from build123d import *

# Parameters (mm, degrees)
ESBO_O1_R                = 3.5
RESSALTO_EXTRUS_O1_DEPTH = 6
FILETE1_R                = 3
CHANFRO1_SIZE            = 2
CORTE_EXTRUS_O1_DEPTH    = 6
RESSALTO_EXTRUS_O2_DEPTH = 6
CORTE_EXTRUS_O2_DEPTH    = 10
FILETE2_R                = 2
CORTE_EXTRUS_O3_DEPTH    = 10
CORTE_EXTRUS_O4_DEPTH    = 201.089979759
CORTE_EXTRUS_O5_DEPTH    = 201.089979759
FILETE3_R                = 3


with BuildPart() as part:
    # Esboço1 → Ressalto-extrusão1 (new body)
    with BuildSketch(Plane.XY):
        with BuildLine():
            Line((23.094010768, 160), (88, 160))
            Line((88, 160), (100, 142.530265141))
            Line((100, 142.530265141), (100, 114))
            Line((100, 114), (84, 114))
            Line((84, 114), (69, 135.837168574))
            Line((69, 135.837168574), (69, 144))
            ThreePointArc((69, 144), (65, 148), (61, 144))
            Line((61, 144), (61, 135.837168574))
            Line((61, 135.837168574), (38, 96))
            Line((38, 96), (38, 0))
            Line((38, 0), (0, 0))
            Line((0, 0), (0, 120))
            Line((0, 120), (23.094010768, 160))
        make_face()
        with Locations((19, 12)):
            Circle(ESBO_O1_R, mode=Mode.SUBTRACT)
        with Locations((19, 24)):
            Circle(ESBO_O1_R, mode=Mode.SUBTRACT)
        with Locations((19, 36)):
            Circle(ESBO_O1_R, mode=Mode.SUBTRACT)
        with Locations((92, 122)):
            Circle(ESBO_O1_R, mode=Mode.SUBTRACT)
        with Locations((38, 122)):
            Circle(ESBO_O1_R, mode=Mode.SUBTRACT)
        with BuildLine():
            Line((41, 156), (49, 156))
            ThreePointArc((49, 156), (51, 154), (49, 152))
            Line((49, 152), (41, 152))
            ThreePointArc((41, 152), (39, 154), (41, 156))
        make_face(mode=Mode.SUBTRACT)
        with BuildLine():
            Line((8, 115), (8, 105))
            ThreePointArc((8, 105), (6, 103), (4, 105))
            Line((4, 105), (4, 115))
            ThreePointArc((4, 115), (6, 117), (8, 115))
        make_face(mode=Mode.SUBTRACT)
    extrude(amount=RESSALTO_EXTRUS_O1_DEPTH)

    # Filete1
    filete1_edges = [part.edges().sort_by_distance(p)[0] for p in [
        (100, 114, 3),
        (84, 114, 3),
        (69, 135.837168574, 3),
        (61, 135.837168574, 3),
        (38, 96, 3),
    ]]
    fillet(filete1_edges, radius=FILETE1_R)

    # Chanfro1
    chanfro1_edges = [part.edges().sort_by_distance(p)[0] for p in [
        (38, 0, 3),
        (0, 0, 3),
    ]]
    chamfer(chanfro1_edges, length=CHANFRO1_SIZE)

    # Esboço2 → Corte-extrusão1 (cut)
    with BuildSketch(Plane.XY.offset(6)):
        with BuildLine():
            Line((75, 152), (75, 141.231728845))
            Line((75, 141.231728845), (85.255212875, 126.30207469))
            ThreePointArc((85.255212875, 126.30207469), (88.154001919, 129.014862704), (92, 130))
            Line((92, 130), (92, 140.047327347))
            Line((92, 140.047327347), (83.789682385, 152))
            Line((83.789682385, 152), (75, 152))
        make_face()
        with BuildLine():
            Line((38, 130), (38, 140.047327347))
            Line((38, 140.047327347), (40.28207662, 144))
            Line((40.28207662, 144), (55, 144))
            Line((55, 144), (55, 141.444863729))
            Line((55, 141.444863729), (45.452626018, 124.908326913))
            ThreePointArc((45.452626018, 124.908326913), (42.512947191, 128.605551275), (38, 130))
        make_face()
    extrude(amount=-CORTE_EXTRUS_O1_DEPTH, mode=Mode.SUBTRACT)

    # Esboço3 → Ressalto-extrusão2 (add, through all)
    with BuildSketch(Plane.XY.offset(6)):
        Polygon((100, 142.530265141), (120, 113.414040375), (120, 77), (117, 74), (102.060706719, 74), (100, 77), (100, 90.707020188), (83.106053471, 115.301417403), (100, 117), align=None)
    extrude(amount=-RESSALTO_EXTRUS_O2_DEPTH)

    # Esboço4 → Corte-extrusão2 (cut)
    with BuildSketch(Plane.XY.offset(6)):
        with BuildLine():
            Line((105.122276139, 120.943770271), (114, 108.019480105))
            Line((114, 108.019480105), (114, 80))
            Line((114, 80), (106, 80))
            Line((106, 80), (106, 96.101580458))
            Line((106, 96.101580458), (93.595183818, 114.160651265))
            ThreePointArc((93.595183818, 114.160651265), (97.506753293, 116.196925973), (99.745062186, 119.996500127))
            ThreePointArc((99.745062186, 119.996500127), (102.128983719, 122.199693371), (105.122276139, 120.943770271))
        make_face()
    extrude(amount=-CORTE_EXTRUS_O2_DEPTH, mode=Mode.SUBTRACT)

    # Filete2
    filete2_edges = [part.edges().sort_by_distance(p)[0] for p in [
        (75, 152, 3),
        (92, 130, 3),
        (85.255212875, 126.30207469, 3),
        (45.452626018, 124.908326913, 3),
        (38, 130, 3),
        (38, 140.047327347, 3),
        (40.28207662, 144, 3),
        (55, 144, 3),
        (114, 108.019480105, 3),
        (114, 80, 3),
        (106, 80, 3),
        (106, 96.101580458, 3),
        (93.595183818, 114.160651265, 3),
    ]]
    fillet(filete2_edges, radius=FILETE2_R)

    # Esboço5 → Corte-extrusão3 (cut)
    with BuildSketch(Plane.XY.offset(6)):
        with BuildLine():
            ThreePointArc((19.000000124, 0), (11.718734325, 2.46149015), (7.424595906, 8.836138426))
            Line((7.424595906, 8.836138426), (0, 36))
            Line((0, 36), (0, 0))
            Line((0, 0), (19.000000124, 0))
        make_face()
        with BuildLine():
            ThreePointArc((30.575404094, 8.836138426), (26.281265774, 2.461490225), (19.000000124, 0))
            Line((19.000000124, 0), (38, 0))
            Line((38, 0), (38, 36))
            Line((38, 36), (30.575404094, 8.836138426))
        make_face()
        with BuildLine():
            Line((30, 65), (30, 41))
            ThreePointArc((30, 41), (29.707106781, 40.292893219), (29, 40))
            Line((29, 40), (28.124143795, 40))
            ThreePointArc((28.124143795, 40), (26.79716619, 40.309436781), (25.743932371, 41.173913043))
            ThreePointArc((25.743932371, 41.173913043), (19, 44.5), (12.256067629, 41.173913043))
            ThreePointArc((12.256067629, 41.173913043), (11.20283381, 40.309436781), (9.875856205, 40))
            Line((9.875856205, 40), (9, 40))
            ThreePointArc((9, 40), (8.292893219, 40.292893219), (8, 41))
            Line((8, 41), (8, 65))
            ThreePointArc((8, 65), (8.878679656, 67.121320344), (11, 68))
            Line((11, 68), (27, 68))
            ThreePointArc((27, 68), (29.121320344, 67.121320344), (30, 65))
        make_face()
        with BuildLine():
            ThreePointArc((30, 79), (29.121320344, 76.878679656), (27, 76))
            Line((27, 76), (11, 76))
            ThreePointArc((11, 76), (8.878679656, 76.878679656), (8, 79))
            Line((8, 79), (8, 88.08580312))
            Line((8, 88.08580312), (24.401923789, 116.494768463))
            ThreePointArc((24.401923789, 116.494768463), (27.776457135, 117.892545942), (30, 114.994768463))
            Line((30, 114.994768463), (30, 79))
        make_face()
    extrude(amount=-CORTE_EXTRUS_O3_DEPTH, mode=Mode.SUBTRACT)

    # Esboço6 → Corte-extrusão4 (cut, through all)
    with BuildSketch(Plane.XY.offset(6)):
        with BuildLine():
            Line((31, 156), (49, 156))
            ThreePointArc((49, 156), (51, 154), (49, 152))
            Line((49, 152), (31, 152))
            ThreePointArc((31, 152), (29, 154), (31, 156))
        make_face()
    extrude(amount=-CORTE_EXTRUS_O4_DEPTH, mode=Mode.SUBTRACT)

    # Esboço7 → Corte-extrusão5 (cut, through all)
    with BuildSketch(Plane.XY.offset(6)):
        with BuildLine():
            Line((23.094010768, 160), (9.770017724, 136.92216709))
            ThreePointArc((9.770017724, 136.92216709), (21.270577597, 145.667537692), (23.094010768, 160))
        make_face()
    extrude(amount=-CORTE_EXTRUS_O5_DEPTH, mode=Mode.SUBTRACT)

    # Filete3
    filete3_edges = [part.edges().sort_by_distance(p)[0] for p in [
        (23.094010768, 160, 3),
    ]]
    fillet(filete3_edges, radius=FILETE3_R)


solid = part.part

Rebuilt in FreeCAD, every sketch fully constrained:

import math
import FreeCAD as App
import Part
import Sketcher

V = App.Vector
Q = App.Units.Quantity


def edges_at(feature, points):
    """Names of the edges that pass closest to the given points."""
    edges = feature.Shape.Edges
    near = lambda p: min(range(len(edges)), key=lambda i: edges[i].distToShape(Part.Vertex(*p))[0])
    return sorted({f"Edge{near(p) + 1}" for p in points})

doc = App.newDocument("Part")
body = doc.addObject("PartDesign::Body", "Body")

# Sketch on XY plane
sketch1 = body.newObject("Sketcher::SketchObject", "Sketch")
sketch1.AttachmentSupport = (doc.getObject("XY_Plane"), [""])
sketch1.MapMode = "FlatFace"
sketch1.addGeometry([
    Part.LineSegment(V(88, 160, 0), V(23.1, 160, 0)),  # 0
    Part.LineSegment(V(23.1, 160, 0), V(0, 120, 0)),  # 1
    Part.LineSegment(V(0, 120, 0), V(0, 0, 0)),  # 2
    Part.LineSegment(V(0, 0, 0), V(38, 0, 0)),  # 3
    Part.LineSegment(V(38, 0, 0), V(38, 96, 0)),  # 4
    Part.LineSegment(V(38, 96, 0), V(61, 135.8, 0)),  # 5
    Part.LineSegment(V(61, 135.8, 0), V(61, 144, 0)),  # 6
    Part.ArcOfCircle(Part.Circle(V(65, 144, 0), V(0, 0, 1), 4), math.radians(0), math.radians(180)),  # 7
    Part.LineSegment(V(69, 144, 0), V(69, 135.8, 0)),  # 8
    Part.LineSegment(V(69, 135.8, 0), V(84, 114, 0)),  # 9
    Part.LineSegment(V(84, 114, 0), V(100, 114, 0)),  # 10
    Part.LineSegment(V(100, 114, 0), V(100, 142.5, 0)),  # 11
    Part.LineSegment(V(100, 142.5, 0), V(88, 160, 0)),  # 12
    Part.Circle(V(19, 12, 0), V(0, 0, 1), 3.5),  # 13
    Part.Circle(V(19, 24, 0), V(0, 0, 1), 3.5),  # 14
    Part.Circle(V(19, 36, 0), V(0, 0, 1), 3.5),  # 15
    Part.Circle(V(92, 122, 0), V(0, 0, 1), 3.5),  # 16
    Part.LineSegment(V(8, 115, 0), V(8, 105, 0)),  # 17
    Part.ArcOfCircle(Part.Circle(V(6, 105, 0), V(0, 0, 1), 2), math.radians(180), math.radians(360)),  # 18
    Part.LineSegment(V(4, 105, 0), V(4, 115, 0)),  # 19
    Part.ArcOfCircle(Part.Circle(V(6, 115, 0), V(0, 0, 1), 2), math.radians(0), math.radians(180)),  # 20
    Part.Circle(V(38, 122, 0), V(0, 0, 1), 3.5),  # 21
    Part.LineSegment(V(41, 156, 0), V(49, 156, 0)),  # 22
    Part.ArcOfCircle(Part.Circle(V(49, 154, 0), V(0, 0, 1), 2), math.radians(-90), math.radians(90)),  # 23
    Part.LineSegment(V(49, 152, 0), V(41, 152, 0)),  # 24
    Part.ArcOfCircle(Part.Circle(V(41, 154, 0), V(0, 0, 1), 2), math.radians(90), math.radians(270)),  # 25
], False)
sketch1.addConstraint([
    Sketcher.Constraint("Coincident", 0, 2, 1, 1),
    Sketcher.Constraint("Coincident", 1, 2, 2, 1),
    Sketcher.Constraint("Coincident", 2, 2, 3, 1),
    Sketcher.Constraint("Coincident", 3, 2, 4, 1),
    Sketcher.Constraint("Coincident", 4, 2, 5, 1),
    Sketcher.Constraint("Coincident", 5, 2, 6, 1),
    Sketcher.Constraint("Tangent", 6, 2, 7, 2),
    Sketcher.Constraint("Tangent", 7, 1, 8, 1),
    Sketcher.Constraint("Coincident", 8, 2, 9, 1),
    Sketcher.Constraint("Coincident", 9, 2, 10, 1),
    Sketcher.Constraint("Coincident", 10, 2, 11, 1),
    Sketcher.Constraint("Coincident", 11, 2, 12, 1),
    Sketcher.Constraint("Coincident", 12, 2, 0, 1),
    Sketcher.Constraint("Tangent", 17, 2, 18, 2),
    Sketcher.Constraint("Tangent", 18, 1, 19, 1),
    Sketcher.Constraint("Tangent", 19, 2, 20, 2),
    Sketcher.Constraint("Tangent", 20, 1, 17, 1),
    Sketcher.Constraint("Tangent", 22, 2, 23, 2),
    Sketcher.Constraint("Tangent", 23, 1, 24, 1),
    Sketcher.Constraint("Tangent", 24, 2, 25, 2),
    Sketcher.Constraint("Tangent", 25, 1, 22, 1),
    Sketcher.Constraint("Horizontal", 0),
    Sketcher.Constraint("Vertical", 2),
    Sketcher.Constraint("Horizontal", 3),
    Sketcher.Constraint("Vertical", 4),
    Sketcher.Constraint("Vertical", 6),
    Sketcher.Constraint("Vertical", 8),
    Sketcher.Constraint("Horizontal", 10),
    Sketcher.Constraint("Vertical", 11),
    Sketcher.Constraint("Vertical", 17),
    Sketcher.Constraint("Vertical", 19),
    Sketcher.Constraint("Horizontal", 22),
    Sketcher.Constraint("Horizontal", 24),
    Sketcher.Constraint("Coincident", 2, 2, -1, 1),
    Sketcher.Constraint("Equal", 13, 14),
    Sketcher.Constraint("Equal", 14, 15),
    Sketcher.Constraint("Equal", 15, 16),
    Sketcher.Constraint("Equal", 16, 21),
    Sketcher.Constraint("Equal", 20, 23),
    Sketcher.Constraint("Parallel", 1, 5),
    Sketcher.Constraint("Parallel", 9, 12),
    Sketcher.Constraint("Horizontal", 16, 3, 21, 3),
    Sketcher.Constraint("Horizontal", 5, 2, 8, 2),
    Sketcher.Constraint("Vertical", 13, 3, 14, 3),
    Sketcher.Constraint("Vertical", 14, 3, 15, 3),
    Sketcher.Constraint("Vertical", 21, 3, 3, 2),
    Sketcher.Constraint("Diameter", 13, 7.0),
    Sketcher.Constraint("Radius", 7, 4.0),
    Sketcher.Constraint("Radius", 18, 2.0),
    Sketcher.Constraint("DistanceX", 3, 1, 3, 2, 38.0),
    Sketcher.Constraint("DistanceX", 10, 1, 10, 2, 16.0),
    Sketcher.Constraint("DistanceX", 22, 1, 22, 2, 8.0),
    Sketcher.Constraint("DistanceY", 2, 2, 2, 1, 120.0),
    Sketcher.Constraint("DistanceY", 4, 1, 4, 2, 96.0),
    Sketcher.Constraint("DistanceY", 17, 2, 17, 1, 10.0),
    Sketcher.Constraint("Angle", 1, Q("-120 deg")),
    Sketcher.Constraint("Distance", 5, 46.0),
    Sketcher.Constraint("DistanceY", -1, 1, 7, 3, 144.0),
    Sketcher.Constraint("DistanceX", -1, 1, 13, 3, 19.0),
    Sketcher.Constraint("DistanceY", -1, 1, 13, 3, 12.0),
    Sketcher.Constraint("DistanceY", -1, 1, 14, 3, 24.0),
    Sketcher.Constraint("DistanceY", -1, 1, 15, 3, 36.0),
    Sketcher.Constraint("DistanceX", -1, 1, 16, 3, 92.0),
    Sketcher.Constraint("DistanceY", -1, 1, 16, 3, 122.0),
    Sketcher.Constraint("DistanceX", -1, 1, 18, 3, 6.0),
    Sketcher.Constraint("DistanceY", -1, 1, 18, 3, 105.0),
    Sketcher.Constraint("DistanceX", -1, 1, 23, 3, 49.0),
    Sketcher.Constraint("DistanceY", -1, 1, 23, 3, 154.0),
    Sketcher.Constraint("DistanceY", -1, 1, 0, 2, 160.0),
    Sketcher.Constraint("DistanceX", -1, 1, 9, 2, 84.0),
    Sketcher.Constraint("DistanceY", -1, 1, 9, 2, 114.0),
    Sketcher.Constraint("DistanceX", -1, 1, 12, 2, 88.0),
])
pad1 = body.newObject("PartDesign::Pad", "Pad")
pad1.Profile = sketch1
pad1.Length = 6
doc.recompute()

fillet = body.newObject("PartDesign::Fillet", "Fillet")
fillet.Base = (pad1, edges_at(pad1, [
    (100, 114, 3),
    (84, 114, 3),
    (69, 135.837, 3),
    (61, 135.837, 3),
    (38, 96, 3),
]))
fillet.Radius = 3
doc.recompute()

chamfer = body.newObject("PartDesign::Chamfer", "Chamfer")
chamfer.Base = (fillet, edges_at(fillet, [(38, 0, 3), (0, 0, 3)]))
chamfer.Size = 2

# Sketch on XY plane
sketch2 = body.newObject("Sketcher::SketchObject", "Sketch001")
sketch2.AttachmentSupport = (doc.getObject("XY_Plane"), [""])
sketch2.MapMode = "FlatFace"
sketch2.AttachmentOffset = App.Placement(V(0, 0, 6), App.Rotation())
sketch2.addGeometry([
    Part.LineSegment(V(75, 152, 0), V(75, 141.2, 0)),  # 0
    Part.LineSegment(V(75, 141.2, 0), V(85.3, 126.3, 0)),  # 1
    Part.ArcOfCircle(Part.Circle(V(92, 122, 0), V(0, 0, 1), 8), math.radians(90), math.radians(147)),  # 2
    Part.LineSegment(V(92, 130, 0), V(92, 140, 0)),  # 3
    Part.LineSegment(V(92, 140, 0), V(83.8, 152, 0)),  # 4
    Part.LineSegment(V(83.8, 152, 0), V(75, 152, 0)),  # 5
    Part.LineSegment(V(38, 140, 0), V(38, 130, 0)),  # 6
    Part.ArcOfCircle(Part.Circle(V(38, 122, 0), V(0, 0, 1), 8), math.radians(21), math.radians(90)),  # 7
    Part.LineSegment(V(45.5, 124.9, 0), V(55, 141.4, 0)),  # 8
    Part.LineSegment(V(55, 141.4, 0), V(55, 144, 0)),  # 9
    Part.LineSegment(V(55, 144, 0), V(40.3, 144, 0)),  # 10
    Part.LineSegment(V(40.3, 144, 0), V(38, 140, 0)),  # 11
], False)
sketch2.addConstraint([
    Sketcher.Constraint("Coincident", 0, 2, 1, 1),
    Sketcher.Constraint("Coincident", 1, 2, 2, 2),
    Sketcher.Constraint("Coincident", 2, 1, 3, 1),
    Sketcher.Constraint("Coincident", 3, 2, 4, 1),
    Sketcher.Constraint("Coincident", 4, 2, 5, 1),
    Sketcher.Constraint("Coincident", 5, 2, 0, 1),
    Sketcher.Constraint("Coincident", 6, 2, 7, 2),
    Sketcher.Constraint("Coincident", 7, 1, 8, 1),
    Sketcher.Constraint("Coincident", 8, 2, 9, 1),
    Sketcher.Constraint("Coincident", 9, 2, 10, 1),
    Sketcher.Constraint("Coincident", 10, 2, 11, 1),
    Sketcher.Constraint("Coincident", 11, 2, 6, 1),
    Sketcher.Constraint("Vertical", 0),
    Sketcher.Constraint("Vertical", 3),
    Sketcher.Constraint("Horizontal", 5),
    Sketcher.Constraint("Vertical", 6),
    Sketcher.Constraint("Vertical", 9),
    Sketcher.Constraint("Horizontal", 10),
    Sketcher.Constraint("Equal", 2, 7),
    Sketcher.Constraint("Parallel", 1, 4),
    Sketcher.Constraint("Parallel", 8, 11),
    Sketcher.Constraint("Horizontal", 2, 3, 7, 3),
    Sketcher.Constraint("Horizontal", 3, 2, 11, 2),
    Sketcher.Constraint("Vertical", 7, 3, 6, 2),
    Sketcher.Constraint("Radius", 2, 8.0),
    Sketcher.Constraint("Angle", 8, Q("60 deg")),
    Sketcher.Constraint("DistanceX", -1, 1, 2, 3, 92.0),
    Sketcher.Constraint("DistanceY", -1, 1, 2, 3, 122.0),
    Sketcher.Constraint("DistanceX", -1, 1, 7, 3, 38.0),
    Sketcher.Constraint("DistanceX", -1, 1, 0, 2, 75.0),
    Sketcher.Constraint("DistanceX", -1, 1, 2, 1, 92.0),
    Sketcher.Constraint("DistanceY", -1, 1, 4, 2, 152.0),
    Sketcher.Constraint("DistanceX", -1, 1, 8, 2, 55.0),
    Sketcher.Constraint("DistanceY", -1, 1, 9, 2, 144.0),
    Sketcher.Constraint("DistanceY", 7, 1, 11, 2, 15.139),
    Sketcher.Constraint("DistanceY", 0, 2, 0, 1, 10.768271),
    Sketcher.Constraint("DistanceY", 3, 2, 0, 2, 1.184401),
    Sketcher.Constraint("DistanceX", 5, 2, 5, 1, 8.789682),
])
pocket1 = body.newObject("PartDesign::Pocket", "Pocket")
pocket1.Profile = sketch2
pocket1.Length = 6

# Sketch on XY plane
sketch3 = body.newObject("Sketcher::SketchObject", "Sketch002")
sketch3.AttachmentSupport = (doc.getObject("XY_Plane"), [""])
sketch3.MapMode = "FlatFace"
sketch3.AttachmentOffset = App.Placement(V(0, 0, 6), App.Rotation())
sketch3.addGeometry([
    Part.LineSegment(V(120, 113.4, 0), V(100, 142.5, 0)),  # 0
    Part.LineSegment(V(100, 142.5, 0), V(100, 117, 0)),  # 1
    Part.LineSegment(V(100, 117, 0), V(83.1, 115.3, 0)),  # 2
    Part.LineSegment(V(83.1, 115.3, 0), V(100, 90.7, 0)),  # 3
    Part.LineSegment(V(100, 90.7, 0), V(100, 77, 0)),  # 4
    Part.LineSegment(V(100, 77, 0), V(102.1, 74, 0)),  # 5
    Part.LineSegment(V(102.1, 74, 0), V(117, 74, 0)),  # 6
    Part.LineSegment(V(117, 74, 0), V(120, 77, 0)),  # 7
    Part.LineSegment(V(120, 77, 0), V(120, 113.4, 0)),  # 8
], False)
sketch3.addConstraint([
    Sketcher.Constraint("Coincident", 0, 2, 1, 1),
    Sketcher.Constraint("Coincident", 1, 2, 2, 1),
    Sketcher.Constraint("Coincident", 2, 2, 3, 1),
    Sketcher.Constraint("Coincident", 3, 2, 4, 1),
    Sketcher.Constraint("Coincident", 4, 2, 5, 1),
    Sketcher.Constraint("Coincident", 5, 2, 6, 1),
    Sketcher.Constraint("Coincident", 6, 2, 7, 1),
    Sketcher.Constraint("Coincident", 7, 2, 8, 1),
    Sketcher.Constraint("Coincident", 8, 2, 0, 1),
    Sketcher.Constraint("Vertical", 1),
    Sketcher.Constraint("Vertical", 4),
    Sketcher.Constraint("Horizontal", 6),
    Sketcher.Constraint("Vertical", 8),
    Sketcher.Constraint("Parallel", 0, 3),
    Sketcher.Constraint("Parallel", 3, 5),
    Sketcher.Constraint("Horizontal", 4, 2, 7, 2),
    Sketcher.Constraint("Vertical", 1, 2, 3, 2),
    Sketcher.Constraint("Angle", 7, Q("45 deg")),
    Sketcher.Constraint("DistanceX", -1, 1, 0, 2, 100.0),
    Sketcher.Constraint("DistanceY", -1, 1, 1, 2, 117.0),
    Sketcher.Constraint("DistanceY", -1, 1, 4, 2, 77.0),
    Sketcher.Constraint("DistanceY", -1, 1, 5, 2, 74.0),
    Sketcher.Constraint("DistanceX", -1, 1, 6, 2, 117.0),
    Sketcher.Constraint("DistanceY", 4, 2, 4, 1, 13.70702),
    Sketcher.Constraint("DistanceY", 8, 1, 8, 2, 36.41404),
    Sketcher.Constraint("Distance", 0, 35.323569),
    Sketcher.Constraint("Distance", 2, 16.979123),
])
pad2 = body.newObject("PartDesign::Pad", "Pad001")
pad2.Profile = sketch3
pad2.Length = 6
pad2.Reversed = True

# Sketch on XY plane
sketch4 = body.newObject("Sketcher::SketchObject", "Sketch003")
sketch4.AttachmentSupport = (doc.getObject("XY_Plane"), [""])
sketch4.MapMode = "FlatFace"
sketch4.AttachmentOffset = App.Placement(V(0, 0, 6), App.Rotation())
sketch4.addGeometry([
    Part.LineSegment(V(114, 108, 0), V(105.1, 120.9, 0)),  # 0
    Part.ArcOfCircle(Part.Circle(V(102.6, 119.2, 0), V(0, 0, 1), 3), math.radians(34), math.radians(165)),  # 1
    Part.ArcOfCircle(Part.Circle(V(92, 122, 0), V(0, 0, 1), 8), math.radians(-78), math.radians(-15)),  # 2
    Part.LineSegment(V(93.6, 114.2, 0), V(106, 96.1, 0)),  # 3
    Part.LineSegment(V(106, 96.1, 0), V(106, 80, 0)),  # 4
    Part.LineSegment(V(106, 80, 0), V(114, 80, 0)),  # 5
    Part.LineSegment(V(114, 80, 0), V(114, 108, 0)),  # 6
], False)
sketch4.addConstraint([
    Sketcher.Constraint("Tangent", 0, 2, 1, 1),
    Sketcher.Constraint("Tangent", 1, 2, 2, 2),
    Sketcher.Constraint("Coincident", 2, 1, 3, 1),
    Sketcher.Constraint("Coincident", 3, 2, 4, 1),
    Sketcher.Constraint("Coincident", 4, 2, 5, 1),
    Sketcher.Constraint("Coincident", 5, 2, 6, 1),
    Sketcher.Constraint("Coincident", 6, 2, 0, 1),
    Sketcher.Constraint("Vertical", 4),
    Sketcher.Constraint("Horizontal", 5),
    Sketcher.Constraint("Vertical", 6),
    Sketcher.Constraint("Parallel", 0, 3),
    Sketcher.Constraint("Radius", 1, 3.0),
    Sketcher.Constraint("Radius", 2, 8.0),
    Sketcher.Constraint("DistanceX", 5, 1, 5, 2, 8.0),
    Sketcher.Constraint("DistanceX", -1, 1, 2, 3, 92.0),
    Sketcher.Constraint("DistanceY", -1, 1, 2, 3, 122.0),
    Sketcher.Constraint("DistanceX", -1, 1, 3, 2, 106.0),
    Sketcher.Constraint("DistanceY", -1, 1, 4, 2, 80.0),
    Sketcher.Constraint("DistanceY", 4, 2, 4, 1, 16.10158),
    Sketcher.Constraint("DistanceY", 6, 1, 6, 2, 28.01948),
    Sketcher.Constraint("DistanceY", -1, 1, 1, 2, 119.9965),
])
pocket2 = body.newObject("PartDesign::Pocket", "Pocket001")
pocket2.Profile = sketch4
pocket2.Length = 10
doc.recompute()

fillet2 = body.newObject("PartDesign::Fillet", "Fillet001")
fillet2.Base = (pocket2, edges_at(pocket2, [
    (75, 152, 3),
    (92, 130, 3),
    (85.255, 126.302, 3),
    (45.453, 124.908, 3),
    (38, 130, 3),
    (38, 140.047, 3),
    (40.282, 144, 3),
    (55, 144, 3),
    (114, 108.019, 3),
    (114, 80, 3),
    (106, 80, 3),
    (106, 96.102, 3),
    (93.595, 114.161, 3),
]))
fillet2.Radius = 2

# Sketch on XY plane
sketch5 = body.newObject("Sketcher::SketchObject", "Sketch004")
sketch5.AttachmentSupport = (doc.getObject("XY_Plane"), [""])
sketch5.MapMode = "FlatFace"
sketch5.AttachmentOffset = App.Placement(V(0, 0, 6), App.Rotation())
sketch5.addGeometry([
    Part.ArcOfCircle(Part.Circle(V(19, 12, 0), V(0, 0, 1), 12), math.radians(-165), math.radians(-90)),  # 0
    Part.LineSegment(V(7.4, 8.8, 0), V(0, 36, 0)),  # 1
    Part.LineSegment(V(0, 36, 0), V(0, 0, 0)),  # 2
    Part.LineSegment(V(0, 0, 0), V(19, 0, 0)),  # 3
    Part.ArcOfCircle(Part.Circle(V(19, 12, 0), V(0, 0, 1), 12), math.radians(-90), math.radians(-15)),  # 4
    Part.LineSegment(V(19, 0, 0), V(38, 0, 0)),  # 5
    Part.LineSegment(V(38, 0, 0), V(38, 36, 0)),  # 6
    Part.LineSegment(V(38, 36, 0), V(30.6, 8.8, 0)),  # 7
    Part.LineSegment(V(30, 41, 0), V(30, 65, 0)),  # 8
    Part.ArcOfCircle(Part.Circle(V(27, 65, 0), V(0, 0, 1), 3), math.radians(0), math.radians(90)),  # 9
    Part.LineSegment(V(27, 68, 0), V(11, 68, 0)),  # 10
    Part.ArcOfCircle(Part.Circle(V(11, 65, 0), V(0, 0, 1), 3), math.radians(90), math.radians(180)),  # 11
    Part.LineSegment(V(8, 65, 0), V(8, 41, 0)),  # 12
    Part.ArcOfCircle(Part.Circle(V(9, 41, 0), V(0, 0, 1), 1), math.radians(-180), math.radians(-90)),  # 13
    Part.LineSegment(V(9, 40, 0), V(9.9, 40, 0)),  # 14
    Part.ArcOfCircle(Part.Circle(V(9.9, 43, 0), V(0, 0, 1), 3), math.radians(-90), math.radians(-37)),  # 15
    Part.ArcOfCircle(Part.Circle(V(19, 36, 0), V(0, 0, 1), 8.5), math.radians(37), math.radians(143)),  # 16
    Part.ArcOfCircle(Part.Circle(V(28.1, 43, 0), V(0, 0, 1), 3), math.radians(-143), math.radians(-90)),  # 17
    Part.LineSegment(V(28.1, 40, 0), V(29, 40, 0)),  # 18
    Part.ArcOfCircle(Part.Circle(V(29, 41, 0), V(0, 0, 1), 1), math.radians(-90), math.radians(0)),  # 19
    Part.ArcOfCircle(Part.Circle(V(27, 79, 0), V(0, 0, 1), 3), math.radians(-90), math.radians(0)),  # 20
    Part.LineSegment(V(30, 79, 0), V(30, 115, 0)),  # 21
    Part.ArcOfCircle(Part.Circle(V(27, 115, 0), V(0, 0, 1), 3), math.radians(0), math.radians(150)),  # 22
    Part.LineSegment(V(24.4, 116.5, 0), V(8, 88.1, 0)),  # 23
    Part.LineSegment(V(8, 88.1, 0), V(8, 79, 0)),  # 24
    Part.ArcOfCircle(Part.Circle(V(11, 79, 0), V(0, 0, 1), 3), math.radians(180), math.radians(270)),  # 25
    Part.LineSegment(V(11, 76, 0), V(27, 76, 0)),  # 26
], False)
sketch5.addConstraint([
    Sketcher.Constraint("Tangent", 0, 1, 1, 1),
    Sketcher.Constraint("Coincident", 1, 2, 2, 1),
    Sketcher.Constraint("Coincident", 2, 2, 3, 1),
    Sketcher.Constraint("Tangent", 3, 2, 0, 2),
    Sketcher.Constraint("Tangent", 4, 1, 5, 1),
    Sketcher.Constraint("Coincident", 5, 2, 6, 1),
    Sketcher.Constraint("Coincident", 6, 2, 7, 1),
    Sketcher.Constraint("Tangent", 7, 2, 4, 2),
    Sketcher.Constraint("Tangent", 8, 2, 9, 1),
    Sketcher.Constraint("Tangent", 9, 2, 10, 1),
    Sketcher.Constraint("Tangent", 10, 2, 11, 1),
    Sketcher.Constraint("Tangent", 11, 2, 12, 1),
    Sketcher.Constraint("Tangent", 12, 2, 13, 1),
    Sketcher.Constraint("Tangent", 13, 2, 14, 1),
    Sketcher.Constraint("Tangent", 14, 2, 15, 1),
    Sketcher.Constraint("Tangent", 15, 2, 16, 2),
    Sketcher.Constraint("Tangent", 16, 1, 17, 1),
    Sketcher.Constraint("Tangent", 17, 2, 18, 1),
    Sketcher.Constraint("Tangent", 18, 2, 19, 1),
    Sketcher.Constraint("Tangent", 19, 2, 8, 1),
    Sketcher.Constraint("Tangent", 20, 2, 21, 1),
    Sketcher.Constraint("Tangent", 21, 2, 22, 1),
    Sketcher.Constraint("Tangent", 22, 2, 23, 1),
    Sketcher.Constraint("Coincident", 23, 2, 24, 1),
    Sketcher.Constraint("Tangent", 24, 2, 25, 1),
    Sketcher.Constraint("Tangent", 25, 2, 26, 1),
    Sketcher.Constraint("Tangent", 26, 2, 20, 1),
    Sketcher.Constraint("Vertical", 2),
    Sketcher.Constraint("Horizontal", 3),
    Sketcher.Constraint("Horizontal", 5),
    Sketcher.Constraint("Vertical", 6),
    Sketcher.Constraint("Vertical", 8),
    Sketcher.Constraint("Horizontal", 10),
    Sketcher.Constraint("Vertical", 12),
    Sketcher.Constraint("Horizontal", 14),
    Sketcher.Constraint("Horizontal", 18),
    Sketcher.Constraint("Vertical", 21),
    Sketcher.Constraint("Vertical", 24),
    Sketcher.Constraint("Horizontal", 26),
    Sketcher.Constraint("Coincident", 2, 2, -1, 1),
    Sketcher.Constraint("Coincident", 4, 3, 0, 3),
    Sketcher.Constraint("Equal", 0, 4),
    Sketcher.Constraint("Equal", 9, 11),
    Sketcher.Constraint("Equal", 11, 15),
    Sketcher.Constraint("Equal", 15, 17),
    Sketcher.Constraint("Equal", 13, 19),
    Sketcher.Constraint("Equal", 17, 20),
    Sketcher.Constraint("Equal", 20, 22),
    Sketcher.Constraint("Equal", 22, 25),
    Sketcher.Constraint("Horizontal", 15, 3, 17, 3),
    Sketcher.Constraint("Horizontal", 16, 3, 1, 2),
    Sketcher.Constraint("Horizontal", 1, 2, 6, 2),
    Sketcher.Constraint("Horizontal", 0, 1, 7, 2),
    Sketcher.Constraint("Vertical", 4, 3, 16, 3),
    Sketcher.Constraint("Vertical", 9, 3, 20, 3),
    Sketcher.Constraint("Vertical", 11, 3, 25, 3),
    Sketcher.Constraint("Equal", 14, 18),
    Sketcher.Constraint("Radius", 0, 12.0),
    Sketcher.Constraint("Radius", 9, 3.0),
    Sketcher.Constraint("Radius", 13, 1.0),
    Sketcher.Constraint("Radius", 16, 8.5),
    Sketcher.Constraint("DistanceX", 3, 1, 3, 2, 19.0),
    Sketcher.Constraint("DistanceX", 10, 2, 10, 1, 16.0),
    Sketcher.Constraint("DistanceY", 2, 2, 2, 1, 36.0),
    Sketcher.Constraint("DistanceY", 8, 1, 8, 2, 24.0),
    Sketcher.Constraint("Angle", 23, Q("-120 deg")),
    Sketcher.Constraint("DistanceY", -1, 1, 9, 3, 65.0),
    Sketcher.Constraint("DistanceY", -1, 1, 20, 3, 79.0),
    Sketcher.Constraint("DistanceY", 21, 1, 21, 2, 35.994768),
])
pocket3 = body.newObject("PartDesign::Pocket", "Pocket002")
pocket3.Profile = sketch5
pocket3.Length = 10

# Sketch on XY plane
sketch6 = body.newObject("Sketcher::SketchObject", "Sketch005")
sketch6.AttachmentSupport = (doc.getObject("XY_Plane"), [""])
sketch6.MapMode = "FlatFace"
sketch6.AttachmentOffset = App.Placement(V(0, 0, 6), App.Rotation())
sketch6.addGeometry([
    Part.LineSegment(V(49, 156, 0), V(31, 156, 0)),
    Part.ArcOfCircle(Part.Circle(V(31, 154, 0), V(0, 0, 1), 2), math.radians(90), math.radians(270)),
    Part.LineSegment(V(31, 152, 0), V(49, 152, 0)),
    Part.ArcOfCircle(Part.Circle(V(49, 154, 0), V(0, 0, 1), 2), math.radians(-90), math.radians(90)),
], False)
sketch6.addConstraint([
    Sketcher.Constraint("Tangent", 0, 2, 1, 1),
    Sketcher.Constraint("Tangent", 1, 2, 2, 1),
    Sketcher.Constraint("Tangent", 2, 2, 3, 1),
    Sketcher.Constraint("Tangent", 3, 2, 0, 1),
    Sketcher.Constraint("Horizontal", 0),
    Sketcher.Constraint("Horizontal", 2),
    Sketcher.Constraint("Radius", 1, 2.0),
    Sketcher.Constraint("DistanceX", 0, 2, 0, 1, 18.0),
    Sketcher.Constraint("DistanceX", -1, 1, 1, 3, 31.0),
    Sketcher.Constraint("DistanceY", -1, 1, 1, 3, 154.0),
])
pocket4 = body.newObject("PartDesign::Pocket", "Pocket003")
pocket4.Profile = sketch6
pocket4.Type = "ThroughAll"

# Sketch on XY plane
sketch7 = body.newObject("Sketcher::SketchObject", "Sketch006")
sketch7.AttachmentSupport = (doc.getObject("XY_Plane"), [""])
sketch7.MapMode = "FlatFace"
sketch7.AttachmentOffset = App.Placement(V(0, 0, 6), App.Rotation())
sketch7.addGeometry([
    Part.LineSegment(V(23, 160, 0), V(10, 137, 0)),
    Part.ArcOfCircle(Part.Circle(V(5, 155, 0), V(0, 0, 1), 19), math.radians(-75), math.radians(15)),
], False)
sketch7.addConstraint([
    Sketcher.Constraint("Coincident", 0, 1, 1, 2),
    Sketcher.Constraint("Coincident", 1, 1, 0, 2),
    Sketcher.Constraint("Angle", 0, Q("-120 deg")),
    Sketcher.Constraint("DistanceY", -1, 1, 0, 1, 160.0),
    Sketcher.Constraint("Radius", 1, 18.680952),
    Sketcher.Constraint("DistanceX", -1, 1, 1, 3, 5.092399),
    Sketcher.Constraint("DistanceX", -1, 1, 0, 1, 23.094011),
])
pocket5 = body.newObject("PartDesign::Pocket", "Pocket004")
pocket5.Profile = sketch7
pocket5.Type = "ThroughAll"
doc.recompute()

fillet3 = body.newObject("PartDesign::Fillet", "Fillet002")
fillet3.Base = (pocket5, edges_at(pocket5, [(23.094, 160, 3)]))
fillet3.Radius = 3

doc.recompute()
